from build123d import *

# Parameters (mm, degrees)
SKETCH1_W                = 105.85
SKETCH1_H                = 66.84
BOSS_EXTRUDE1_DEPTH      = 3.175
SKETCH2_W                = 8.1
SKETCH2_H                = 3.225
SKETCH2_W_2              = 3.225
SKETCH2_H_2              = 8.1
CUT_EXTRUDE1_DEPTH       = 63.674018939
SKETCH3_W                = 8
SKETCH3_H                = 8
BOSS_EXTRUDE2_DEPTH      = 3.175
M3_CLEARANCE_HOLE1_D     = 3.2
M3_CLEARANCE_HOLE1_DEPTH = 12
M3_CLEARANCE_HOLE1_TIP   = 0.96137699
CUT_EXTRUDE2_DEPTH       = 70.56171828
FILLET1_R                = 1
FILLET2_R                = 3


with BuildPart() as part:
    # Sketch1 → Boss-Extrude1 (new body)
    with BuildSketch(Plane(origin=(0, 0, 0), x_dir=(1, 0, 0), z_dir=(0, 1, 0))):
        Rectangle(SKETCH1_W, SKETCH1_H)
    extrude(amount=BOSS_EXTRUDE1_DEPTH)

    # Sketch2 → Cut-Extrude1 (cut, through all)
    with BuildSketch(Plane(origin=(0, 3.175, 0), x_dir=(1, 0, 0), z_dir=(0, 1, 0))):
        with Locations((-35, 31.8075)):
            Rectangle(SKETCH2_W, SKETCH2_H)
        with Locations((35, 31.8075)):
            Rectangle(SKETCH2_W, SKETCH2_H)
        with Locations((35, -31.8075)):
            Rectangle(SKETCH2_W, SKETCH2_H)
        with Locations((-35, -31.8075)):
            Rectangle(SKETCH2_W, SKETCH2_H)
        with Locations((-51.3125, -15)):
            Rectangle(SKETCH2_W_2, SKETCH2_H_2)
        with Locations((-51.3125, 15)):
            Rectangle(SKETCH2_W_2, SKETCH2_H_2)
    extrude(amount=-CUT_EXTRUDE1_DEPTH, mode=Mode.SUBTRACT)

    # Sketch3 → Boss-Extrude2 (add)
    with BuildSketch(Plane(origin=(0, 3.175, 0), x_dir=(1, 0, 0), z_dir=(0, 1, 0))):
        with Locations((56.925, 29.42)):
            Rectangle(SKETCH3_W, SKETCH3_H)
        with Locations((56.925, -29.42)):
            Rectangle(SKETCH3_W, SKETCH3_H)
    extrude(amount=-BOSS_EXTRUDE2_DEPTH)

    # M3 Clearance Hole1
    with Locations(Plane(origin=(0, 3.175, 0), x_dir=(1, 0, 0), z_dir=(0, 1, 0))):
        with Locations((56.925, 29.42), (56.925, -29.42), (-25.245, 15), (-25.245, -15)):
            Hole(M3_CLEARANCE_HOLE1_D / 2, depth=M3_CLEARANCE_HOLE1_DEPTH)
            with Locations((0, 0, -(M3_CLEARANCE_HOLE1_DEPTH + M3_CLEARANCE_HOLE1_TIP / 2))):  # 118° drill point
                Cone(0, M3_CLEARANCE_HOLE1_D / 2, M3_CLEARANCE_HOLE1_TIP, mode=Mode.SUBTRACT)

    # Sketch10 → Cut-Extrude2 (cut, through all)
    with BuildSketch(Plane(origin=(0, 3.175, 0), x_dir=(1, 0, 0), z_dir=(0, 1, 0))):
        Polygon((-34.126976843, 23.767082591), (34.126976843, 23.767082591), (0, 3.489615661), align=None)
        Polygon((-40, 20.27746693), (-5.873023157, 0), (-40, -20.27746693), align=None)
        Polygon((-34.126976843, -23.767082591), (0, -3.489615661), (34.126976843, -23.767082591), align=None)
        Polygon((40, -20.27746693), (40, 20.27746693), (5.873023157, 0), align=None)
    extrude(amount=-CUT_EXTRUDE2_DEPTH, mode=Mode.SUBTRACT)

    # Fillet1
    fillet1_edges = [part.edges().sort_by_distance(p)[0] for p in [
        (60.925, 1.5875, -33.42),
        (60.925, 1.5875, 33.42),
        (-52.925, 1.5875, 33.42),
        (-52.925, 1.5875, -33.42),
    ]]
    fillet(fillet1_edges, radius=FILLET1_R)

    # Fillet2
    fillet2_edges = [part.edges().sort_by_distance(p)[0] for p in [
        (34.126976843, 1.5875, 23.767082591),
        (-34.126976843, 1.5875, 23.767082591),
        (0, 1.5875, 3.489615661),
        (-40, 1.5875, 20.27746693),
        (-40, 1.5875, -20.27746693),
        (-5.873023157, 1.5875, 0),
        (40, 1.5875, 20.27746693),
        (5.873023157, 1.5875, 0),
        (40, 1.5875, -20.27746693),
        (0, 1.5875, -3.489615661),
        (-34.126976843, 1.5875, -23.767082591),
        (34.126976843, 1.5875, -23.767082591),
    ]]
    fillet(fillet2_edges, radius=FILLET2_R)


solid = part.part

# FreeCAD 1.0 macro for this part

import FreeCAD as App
import Part
import Sketcher


def edges_at(feature, points):
    """Names of the edges that pass closest to the given points."""
    edges = feature.Shape.Edges
    near = lambda p: min(range(len(edges)), key=lambda i: edges[i].distToShape(Part.Vertex(*p))[0])
    return sorted({f"Edge{near(p) + 1}" for p in points})


def add_polygon(sketch, points):
    """Adds a closed chain of lines whose ends are joined by coincident constraints."""
    first, n = sketch.GeometryCount, len(points)
    for a, b in zip(points, points[1:] + points[:1]):
        sketch.addGeometry(Part.LineSegment(App.Vector(*a, 0), App.Vector(*b, 0)), False)
    for i in range(n):
        sketch.addConstraint(Sketcher.Constraint("Coincident", first + i, 2, first + (i + 1) % n, 1))

doc = App.newDocument("Part")
params = doc.addObject("Spreadsheet::Sheet", "Params")
for row, (alias, value) in enumerate([
    ("sketch1_width", "105.85 mm"),
    ("sketch1_height", "66.84 mm"),
    ("pad1_length", "3.175 mm"),
    ("sketch2_width", "8.1 mm"),
    ("sketch3_width", "8 mm"),
    ("pad2_length", "3.175 mm"),
    ("sketch4_diameter", "3.2 mm"),
    ("hole_diameter", "3.2 mm"),
    ("hole_depth", "12 mm"),
    ("fillet_radius", "1 mm"),
    ("fillet2_radius", "3 mm"),
], start=1):
    params.set(f"A{row}", alias)
    params.set(f"B{row}", "=" + value)
    params.setAlias(f"B{row}", alias)

body = doc.addObject("PartDesign::Body", "Body")

sketch1 = body.newObject("Sketcher::SketchObject", "Sketch")
sketch1.AttachmentSupport = (doc.getObject("XZ_Plane"), [""])
sketch1.MapMode = "FlatFace"
add_polygon(sketch1, [(-53, -33), (-53, 33), (53, 33), (53, -33)])
sketch1.addConstraint(Sketcher.Constraint("Vertical", 0))
sketch1.addConstraint(Sketcher.Constraint("Horizontal", 1))
sketch1.addConstraint(Sketcher.Constraint("Vertical", 2))
sketch1.addConstraint(Sketcher.Constraint("Horizontal", 3))
sketch1.addConstraint(Sketcher.Constraint("Symmetric", 0, 2, 2, 2, -1, 1))
sketch1.addConstraint(Sketcher.Constraint("DistanceX", 1, 1, 1, 2, 105.85))
sketch1.addConstraint(Sketcher.Constraint("DistanceY", 0, 1, 0, 2, 66.84))
sketch1.setExpression("Constraints[9]", "Params.sketch1_width")
sketch1.setExpression("Constraints[10]", "Params.sketch1_height")
pad1 = body.newObject("PartDesign::Pad", "Pad")
pad1.Profile = sketch1
pad1.setExpression("Length", "Params.pad1_length")
pad1.Reversed = True

sketch2 = body.newObject("Sketcher::SketchObject", "Sketch001")
sketch2.AttachmentSupport = (doc.getObject("XZ_Plane"), [""])
sketch2.MapMode = "FlatFace"
sketch2.AttachmentOffset = App.Placement(App.Vector(0, 0, -3.175), App.Rotation())
add_polygon(sketch2, [(-39, -33.4), (-39, -30.2), (-30.9, -30.2), (-30.9, -33.4)])
add_polygon(sketch2, [(30.9, -33.4), (30.9, -30.2), (39, -30.2), (39, -33.4)])
add_polygon(sketch2, [(30.9, 30.2), (30.9, 33.4), (39, 33.4), (39, 30.2)])
add_polygon(sketch2, [(-39, 30.2), (-39, 33.4), (-30.9, 33.4), (-30.9, 30.2)])
add_polygon(sketch2, [(-52.9, 10.9), (-52.9, 19.1), (-49.7, 19.1), (-49.7, 10.9)])
add_polygon(sketch2, [(-52.9, -19.1), (-52.9, -10.9), (-49.7, -10.9), (-49.7, -19.1)])
sketch2.addConstraint(Sketcher.Constraint("Vertical", 0))
sketch2.addConstraint(Sketcher.Constraint("Horizontal", 1))
sketch2.addConstraint(Sketcher.Constraint("Vertical", 2))
sketch2.addConstraint(Sketcher.Constraint("Horizontal", 3))
sketch2.addConstraint(Sketcher.Constraint("Vertical", 4))
sketch2.addConstraint(Sketcher.Constraint("Horizontal", 5))
sketch2.addConstraint(Sketcher.Constraint("Vertical", 6))
sketch2.addConstraint(Sketcher.Constraint("Horizontal", 7))
sketch2.addConstraint(Sketcher.Constraint("Vertical", 8))
sketch2.addConstraint(Sketcher.Constraint("Horizontal", 9))
sketch2.addConstraint(Sketcher.Constraint("Vertical", 10))
sketch2.addConstraint(Sketcher.Constraint("Horizontal", 11))
sketch2.addConstraint(Sketcher.Constraint("Vertical", 12))
sketch2.addConstraint(Sketcher.Constraint("Horizontal", 13))
sketch2.addConstraint(Sketcher.Constraint("Vertical", 14))
sketch2.addConstraint(Sketcher.Constraint("Horizontal", 15))
sketch2.addConstraint(Sketcher.Constraint("Vertical", 16))
sketch2.addConstraint(Sketcher.Constraint("Horizontal", 17))
sketch2.addConstraint(Sketcher.Constraint("Vertical", 18))
sketch2.addConstraint(Sketcher.Constraint("Horizontal", 19))
sketch2.addConstraint(Sketcher.Constraint("Vertical", 20))
sketch2.addConstraint(Sketcher.Constraint("Horizontal", 21))
sketch2.addConstraint(Sketcher.Constraint("Vertical", 22))
sketch2.addConstraint(Sketcher.Constraint("Horizontal", 23))
sketch2.addConstraint(Sketcher.Constraint("Symmetric", 2, 2, 8, 2, -1, 1))
sketch2.addConstraint(Sketcher.Constraint("Symmetric", 0, 2, 10, 2, -1, 1))
sketch2.addConstraint(Sketcher.Constraint("Symmetric", 6, 2, 12, 2, -1, 1))
sketch2.addConstraint(Sketcher.Constraint("Symmetric", 4, 2, 14, 2, -1, 1))
sketch2.addConstraint(Sketcher.Constraint("Symmetric", 1, 2, 4, 2, -2))
sketch2.addConstraint(Sketcher.Constraint("Symmetric", 3, 2, 6, 2, -2))
sketch2.addConstraint(Sketcher.Constraint("Symmetric", 19, 2, 20, 2, -1))
sketch2.addConstraint(Sketcher.Constraint("Symmetric", 17, 2, 22, 2, -1))
sketch2.addConstraint(Sketcher.Constraint("Equal", 23, 0))
sketch2.addConstraint(Sketcher.Constraint("Equal", 15, 16))
sketch2.addConstraint(Sketcher.Constraint("DistanceX", 1, 1, 1, 2, 8.1))
sketch2.addConstraint(Sketcher.Constraint("DistanceX", 0, 2, 4, 2, 70.0))
sketch2.addConstraint(Sketcher.Constraint("DistanceX", 17, 2, -1, 1, 49.7))
sketch2.addConstraint(Sketcher.Constraint("DistanceY", 20, 2, 19, 2, 21.9))
sketch2.addConstraint(Sketcher.Constraint("DistanceX", 17, 1, 17, 2, 3.225))
sketch2.addConstraint(Sketcher.Constraint("DistanceY", 2, 2, -1, 1, 33.42))
sketch2.setExpression("Constraints[58]", "Params.sketch2_width")
pocket1 = body.newObject("PartDesign::Pocket", "Pocket")
pocket1.Profile = sketch2
pocket1.Type = "ThroughAll"
pocket1.Reversed = True

sketch3 = body.newObject("Sketcher::SketchObject", "Sketch002")
sketch3.AttachmentSupport = (doc.getObject("XZ_Plane"), [""])
sketch3.MapMode = "FlatFace"
sketch3.AttachmentOffset = App.Placement(App.Vector(0, 0, -3.175), App.Rotation())
add_polygon(sketch3, [(53, -33), (53, -25), (61, -25), (61, -33)])
add_polygon(sketch3, [(53, 25), (53, 33), (61, 33), (61, 25)])
sketch3.addConstraint(Sketcher.Constraint("Vertical", 0))
sketch3.addConstraint(Sketcher.Constraint("Horizontal", 1))
sketch3.addConstraint(Sketcher.Constraint("Vertical", 2))
sketch3.addConstraint(Sketcher.Constraint("Horizontal", 3))
sketch3.addConstraint(Sketcher.Constraint("Vertical", 4))
sketch3.addConstraint(Sketcher.Constraint("Horizontal", 5))
sketch3.addConstraint(Sketcher.Constraint("Vertical", 6))
sketch3.addConstraint(Sketcher.Constraint("Horizontal", 7))
sketch3.addConstraint(Sketcher.Constraint("Symmetric", 3, 2, 4, 2, -1))
sketch3.addConstraint(Sketcher.Constraint("Symmetric", 1, 2, 6, 2, -1))
sketch3.addConstraint(Sketcher.Constraint("Equal", 7, 0))
sketch3.addConstraint(Sketcher.Constraint("DistanceX", 1, 1, 1, 2, 8.0))
sketch3.addConstraint(Sketcher.Constraint("DistanceY", 0, 2, -1, 1, 25.42))
sketch3.addConstraint(Sketcher.Constraint("DistanceX", -1, 1, 0, 2, 52.925))
sketch3.setExpression("Constraints[19]", "Params.sketch3_width")
pad2 = body.newObject("PartDesign::Pad", "Pad001")
pad2.Profile = sketch3
pad2.setExpression("Length", "Params.pad2_length")

sketch4 = body.newObject("Sketcher::SketchObject", "Sketch003")
sketch4.AttachmentSupport = (doc.getObject("XZ_Plane"), [""])
sketch4.MapMode = "FlatFace"
sketch4.AttachmentOffset = App.Placement(App.Vector(0, 0, -3.175), App.Rotation())
sketch4.addGeometry(Part.Circle(App.Vector(56.9, -29.4, 0), App.Vector(0, 0, 1), 1.6), False)
sketch4.addGeometry(Part.Circle(App.Vector(56.9, 29.4, 0), App.Vector(0, 0, 1), 1.6), False)
sketch4.addGeometry(Part.Circle(App.Vector(-25.2, -15, 0), App.Vector(0, 0, 1), 1.6), False)
sketch4.addGeometry(Part.Circle(App.Vector(-25.2, 15, 0), App.Vector(0, 0, 1), 1.6), False)
sketch4.addConstraint(Sketcher.Constraint("Equal", 0, 1))
sketch4.addConstraint(Sketcher.Constraint("Equal", 1, 2))
sketch4.addConstraint(Sketcher.Constraint("Equal", 2, 3))
sketch4.addConstraint(Sketcher.Constraint("Symmetric", 0, 3, 1, 3, -1))
sketch4.addConstraint(Sketcher.Constraint("Symmetric", 2, 3, 3, 3, -1))
sketch4.addConstraint(Sketcher.Constraint("Diameter", 0, 3.2))
sketch4.addConstraint(Sketcher.Constraint("DistanceY", 2, 3, -1, 1, 15.0))
sketch4.addConstraint(Sketcher.Constraint("DistanceY", 0, 3, -1, 1, 29.42))
sketch4.addConstraint(Sketcher.Constraint("DistanceX", 2, 3, 0, 3, 82.17))
sketch4.addConstraint(Sketcher.Constraint("DistanceX", -1, 1, 0, 3, 56.925))
sketch4.setExpression("Constraints[5]", "Params.sketch4_diameter")
doc.recompute()
hole = body.newObject("PartDesign::Hole", "Hole")
hole.Profile = sketch4
hole.ThreadType = "None"
hole.setExpression("Diameter", "Params.hole_diameter")
hole.DepthType = "Dimension"
hole.setExpression("Depth", "Params.hole_depth")
hole.DrillPoint = "Angled"
hole.DrillPointAngle = 118
hole.Reversed = True

sketch5 = body.newObject("Sketcher::SketchObject", "Sketch004")
sketch5.AttachmentSupport = (doc.getObject("XZ_Plane"), [""])
sketch5.MapMode = "FlatFace"
sketch5.AttachmentOffset = App.Placement(App.Vector(0, 0, -3.175), App.Rotation())
add_polygon(sketch5, [(34, -24), (-34, -24), (0, -3)])
add_polygon(sketch5, [(-6, 0), (-40, -20), (-40, 20)])
add_polygon(sketch5, [(0, 3), (-34, 24), (34, 24)])
add_polygon(sketch5, [(40, 20), (40, -20), (6, 0)])
sketch5.addConstraint(Sketcher.Constraint("Horizontal", 0))
sketch5.addConstraint(Sketcher.Constraint("Vertical", 4))
sketch5.addConstraint(Sketcher.Constraint("Horizontal", 7))
sketch5.addConstraint(Sketcher.Constraint("Vertical", 9))
sketch5.addConstraint(Sketcher.Constraint("Symmetric", 2, 2, 6, 2, -1, 1))
sketch5.addConstraint(Sketcher.Constraint("Symmetric", 1, 2, 8, 2, -1, 1))
sketch5.addConstraint(Sketcher.Constraint("Symmetric", 4, 2, 9, 2, -1, 1))
sketch5.addConstraint(Sketcher.Constraint("Symmetric", 5, 2, 10, 2, -1, 1))
sketch5.addConstraint(Sketcher.Constraint("PointOnObject", 1, 2, -2))
sketch5.addConstraint(Sketcher.Constraint("PointOnObject", 5, 2, -1))
sketch5.addConstraint(Sketcher.Constraint("Parallel", 1, 3))
sketch5.addConstraint(Sketcher.Constraint("Parallel", 2, 5))
sketch5.addConstraint(Sketcher.Constraint("Parallel", 3, 8))
sketch5.addConstraint(Sketcher.Constraint("Parallel", 8, 11))
sketch5.addConstraint(Sketcher.Constraint("Horizontal", 3, 2, 9, 2))
sketch5.addConstraint(Sketcher.Constraint("Equal", 2, 3))
sketch5.addConstraint(Sketcher.Constraint("DistanceX", 3, 2, -1, 1, 40.0))
sketch5.addConstraint(Sketcher.Constraint("DistanceY", 1, 2, 6, 2, 27.256698))
sketch5.addConstraint(Sketcher.Constraint("DistanceX", 0, 2, 0, 1, 68.253954))
sketch5.addConstraint(Sketcher.Constraint("DistanceY", 4, 1, 4, 2, 40.554934))
pocket2 = body.newObject("PartDesign::Pocket", "Pocket001")
pocket2.Profile = sketch5
pocket2.Type = "ThroughAll"
pocket2.Reversed = True
doc.recompute()

fillet = body.newObject("PartDesign::Fillet", "Fillet")
fillet.Base = (pocket2, edges_at(pocket2, [
    (60.925, 1.587, -33.42),
    (60.925, 1.587, 33.42),
    (-52.925, 1.587, 33.42),
    (-52.925, 1.587, -33.42),
]))
fillet.setExpression("Radius", "Params.fillet_radius")
doc.recompute()

fillet2 = body.newObject("PartDesign::Fillet", "Fillet001")
fillet2.Base = (fillet, edges_at(fillet, [
    (34.127, 1.587, 23.767),
    (-34.127, 1.587, 23.767),
    (0, 1.587, 3.49),
    (-40, 1.587, 20.277),
    (-40, 1.587, -20.277),
    (-5.873, 1.587, 0),
    (40, 1.587, 20.277),
    (5.873, 1.587, 0),
    (40, 1.587, -20.277),
    (0, 1.587, -3.49),
    (-34.127, 1.587, -23.767),
    (34.127, 1.587, -23.767),
]))
fillet2.setExpression("Radius", "Params.fillet2_radius")

doc.recompute()
